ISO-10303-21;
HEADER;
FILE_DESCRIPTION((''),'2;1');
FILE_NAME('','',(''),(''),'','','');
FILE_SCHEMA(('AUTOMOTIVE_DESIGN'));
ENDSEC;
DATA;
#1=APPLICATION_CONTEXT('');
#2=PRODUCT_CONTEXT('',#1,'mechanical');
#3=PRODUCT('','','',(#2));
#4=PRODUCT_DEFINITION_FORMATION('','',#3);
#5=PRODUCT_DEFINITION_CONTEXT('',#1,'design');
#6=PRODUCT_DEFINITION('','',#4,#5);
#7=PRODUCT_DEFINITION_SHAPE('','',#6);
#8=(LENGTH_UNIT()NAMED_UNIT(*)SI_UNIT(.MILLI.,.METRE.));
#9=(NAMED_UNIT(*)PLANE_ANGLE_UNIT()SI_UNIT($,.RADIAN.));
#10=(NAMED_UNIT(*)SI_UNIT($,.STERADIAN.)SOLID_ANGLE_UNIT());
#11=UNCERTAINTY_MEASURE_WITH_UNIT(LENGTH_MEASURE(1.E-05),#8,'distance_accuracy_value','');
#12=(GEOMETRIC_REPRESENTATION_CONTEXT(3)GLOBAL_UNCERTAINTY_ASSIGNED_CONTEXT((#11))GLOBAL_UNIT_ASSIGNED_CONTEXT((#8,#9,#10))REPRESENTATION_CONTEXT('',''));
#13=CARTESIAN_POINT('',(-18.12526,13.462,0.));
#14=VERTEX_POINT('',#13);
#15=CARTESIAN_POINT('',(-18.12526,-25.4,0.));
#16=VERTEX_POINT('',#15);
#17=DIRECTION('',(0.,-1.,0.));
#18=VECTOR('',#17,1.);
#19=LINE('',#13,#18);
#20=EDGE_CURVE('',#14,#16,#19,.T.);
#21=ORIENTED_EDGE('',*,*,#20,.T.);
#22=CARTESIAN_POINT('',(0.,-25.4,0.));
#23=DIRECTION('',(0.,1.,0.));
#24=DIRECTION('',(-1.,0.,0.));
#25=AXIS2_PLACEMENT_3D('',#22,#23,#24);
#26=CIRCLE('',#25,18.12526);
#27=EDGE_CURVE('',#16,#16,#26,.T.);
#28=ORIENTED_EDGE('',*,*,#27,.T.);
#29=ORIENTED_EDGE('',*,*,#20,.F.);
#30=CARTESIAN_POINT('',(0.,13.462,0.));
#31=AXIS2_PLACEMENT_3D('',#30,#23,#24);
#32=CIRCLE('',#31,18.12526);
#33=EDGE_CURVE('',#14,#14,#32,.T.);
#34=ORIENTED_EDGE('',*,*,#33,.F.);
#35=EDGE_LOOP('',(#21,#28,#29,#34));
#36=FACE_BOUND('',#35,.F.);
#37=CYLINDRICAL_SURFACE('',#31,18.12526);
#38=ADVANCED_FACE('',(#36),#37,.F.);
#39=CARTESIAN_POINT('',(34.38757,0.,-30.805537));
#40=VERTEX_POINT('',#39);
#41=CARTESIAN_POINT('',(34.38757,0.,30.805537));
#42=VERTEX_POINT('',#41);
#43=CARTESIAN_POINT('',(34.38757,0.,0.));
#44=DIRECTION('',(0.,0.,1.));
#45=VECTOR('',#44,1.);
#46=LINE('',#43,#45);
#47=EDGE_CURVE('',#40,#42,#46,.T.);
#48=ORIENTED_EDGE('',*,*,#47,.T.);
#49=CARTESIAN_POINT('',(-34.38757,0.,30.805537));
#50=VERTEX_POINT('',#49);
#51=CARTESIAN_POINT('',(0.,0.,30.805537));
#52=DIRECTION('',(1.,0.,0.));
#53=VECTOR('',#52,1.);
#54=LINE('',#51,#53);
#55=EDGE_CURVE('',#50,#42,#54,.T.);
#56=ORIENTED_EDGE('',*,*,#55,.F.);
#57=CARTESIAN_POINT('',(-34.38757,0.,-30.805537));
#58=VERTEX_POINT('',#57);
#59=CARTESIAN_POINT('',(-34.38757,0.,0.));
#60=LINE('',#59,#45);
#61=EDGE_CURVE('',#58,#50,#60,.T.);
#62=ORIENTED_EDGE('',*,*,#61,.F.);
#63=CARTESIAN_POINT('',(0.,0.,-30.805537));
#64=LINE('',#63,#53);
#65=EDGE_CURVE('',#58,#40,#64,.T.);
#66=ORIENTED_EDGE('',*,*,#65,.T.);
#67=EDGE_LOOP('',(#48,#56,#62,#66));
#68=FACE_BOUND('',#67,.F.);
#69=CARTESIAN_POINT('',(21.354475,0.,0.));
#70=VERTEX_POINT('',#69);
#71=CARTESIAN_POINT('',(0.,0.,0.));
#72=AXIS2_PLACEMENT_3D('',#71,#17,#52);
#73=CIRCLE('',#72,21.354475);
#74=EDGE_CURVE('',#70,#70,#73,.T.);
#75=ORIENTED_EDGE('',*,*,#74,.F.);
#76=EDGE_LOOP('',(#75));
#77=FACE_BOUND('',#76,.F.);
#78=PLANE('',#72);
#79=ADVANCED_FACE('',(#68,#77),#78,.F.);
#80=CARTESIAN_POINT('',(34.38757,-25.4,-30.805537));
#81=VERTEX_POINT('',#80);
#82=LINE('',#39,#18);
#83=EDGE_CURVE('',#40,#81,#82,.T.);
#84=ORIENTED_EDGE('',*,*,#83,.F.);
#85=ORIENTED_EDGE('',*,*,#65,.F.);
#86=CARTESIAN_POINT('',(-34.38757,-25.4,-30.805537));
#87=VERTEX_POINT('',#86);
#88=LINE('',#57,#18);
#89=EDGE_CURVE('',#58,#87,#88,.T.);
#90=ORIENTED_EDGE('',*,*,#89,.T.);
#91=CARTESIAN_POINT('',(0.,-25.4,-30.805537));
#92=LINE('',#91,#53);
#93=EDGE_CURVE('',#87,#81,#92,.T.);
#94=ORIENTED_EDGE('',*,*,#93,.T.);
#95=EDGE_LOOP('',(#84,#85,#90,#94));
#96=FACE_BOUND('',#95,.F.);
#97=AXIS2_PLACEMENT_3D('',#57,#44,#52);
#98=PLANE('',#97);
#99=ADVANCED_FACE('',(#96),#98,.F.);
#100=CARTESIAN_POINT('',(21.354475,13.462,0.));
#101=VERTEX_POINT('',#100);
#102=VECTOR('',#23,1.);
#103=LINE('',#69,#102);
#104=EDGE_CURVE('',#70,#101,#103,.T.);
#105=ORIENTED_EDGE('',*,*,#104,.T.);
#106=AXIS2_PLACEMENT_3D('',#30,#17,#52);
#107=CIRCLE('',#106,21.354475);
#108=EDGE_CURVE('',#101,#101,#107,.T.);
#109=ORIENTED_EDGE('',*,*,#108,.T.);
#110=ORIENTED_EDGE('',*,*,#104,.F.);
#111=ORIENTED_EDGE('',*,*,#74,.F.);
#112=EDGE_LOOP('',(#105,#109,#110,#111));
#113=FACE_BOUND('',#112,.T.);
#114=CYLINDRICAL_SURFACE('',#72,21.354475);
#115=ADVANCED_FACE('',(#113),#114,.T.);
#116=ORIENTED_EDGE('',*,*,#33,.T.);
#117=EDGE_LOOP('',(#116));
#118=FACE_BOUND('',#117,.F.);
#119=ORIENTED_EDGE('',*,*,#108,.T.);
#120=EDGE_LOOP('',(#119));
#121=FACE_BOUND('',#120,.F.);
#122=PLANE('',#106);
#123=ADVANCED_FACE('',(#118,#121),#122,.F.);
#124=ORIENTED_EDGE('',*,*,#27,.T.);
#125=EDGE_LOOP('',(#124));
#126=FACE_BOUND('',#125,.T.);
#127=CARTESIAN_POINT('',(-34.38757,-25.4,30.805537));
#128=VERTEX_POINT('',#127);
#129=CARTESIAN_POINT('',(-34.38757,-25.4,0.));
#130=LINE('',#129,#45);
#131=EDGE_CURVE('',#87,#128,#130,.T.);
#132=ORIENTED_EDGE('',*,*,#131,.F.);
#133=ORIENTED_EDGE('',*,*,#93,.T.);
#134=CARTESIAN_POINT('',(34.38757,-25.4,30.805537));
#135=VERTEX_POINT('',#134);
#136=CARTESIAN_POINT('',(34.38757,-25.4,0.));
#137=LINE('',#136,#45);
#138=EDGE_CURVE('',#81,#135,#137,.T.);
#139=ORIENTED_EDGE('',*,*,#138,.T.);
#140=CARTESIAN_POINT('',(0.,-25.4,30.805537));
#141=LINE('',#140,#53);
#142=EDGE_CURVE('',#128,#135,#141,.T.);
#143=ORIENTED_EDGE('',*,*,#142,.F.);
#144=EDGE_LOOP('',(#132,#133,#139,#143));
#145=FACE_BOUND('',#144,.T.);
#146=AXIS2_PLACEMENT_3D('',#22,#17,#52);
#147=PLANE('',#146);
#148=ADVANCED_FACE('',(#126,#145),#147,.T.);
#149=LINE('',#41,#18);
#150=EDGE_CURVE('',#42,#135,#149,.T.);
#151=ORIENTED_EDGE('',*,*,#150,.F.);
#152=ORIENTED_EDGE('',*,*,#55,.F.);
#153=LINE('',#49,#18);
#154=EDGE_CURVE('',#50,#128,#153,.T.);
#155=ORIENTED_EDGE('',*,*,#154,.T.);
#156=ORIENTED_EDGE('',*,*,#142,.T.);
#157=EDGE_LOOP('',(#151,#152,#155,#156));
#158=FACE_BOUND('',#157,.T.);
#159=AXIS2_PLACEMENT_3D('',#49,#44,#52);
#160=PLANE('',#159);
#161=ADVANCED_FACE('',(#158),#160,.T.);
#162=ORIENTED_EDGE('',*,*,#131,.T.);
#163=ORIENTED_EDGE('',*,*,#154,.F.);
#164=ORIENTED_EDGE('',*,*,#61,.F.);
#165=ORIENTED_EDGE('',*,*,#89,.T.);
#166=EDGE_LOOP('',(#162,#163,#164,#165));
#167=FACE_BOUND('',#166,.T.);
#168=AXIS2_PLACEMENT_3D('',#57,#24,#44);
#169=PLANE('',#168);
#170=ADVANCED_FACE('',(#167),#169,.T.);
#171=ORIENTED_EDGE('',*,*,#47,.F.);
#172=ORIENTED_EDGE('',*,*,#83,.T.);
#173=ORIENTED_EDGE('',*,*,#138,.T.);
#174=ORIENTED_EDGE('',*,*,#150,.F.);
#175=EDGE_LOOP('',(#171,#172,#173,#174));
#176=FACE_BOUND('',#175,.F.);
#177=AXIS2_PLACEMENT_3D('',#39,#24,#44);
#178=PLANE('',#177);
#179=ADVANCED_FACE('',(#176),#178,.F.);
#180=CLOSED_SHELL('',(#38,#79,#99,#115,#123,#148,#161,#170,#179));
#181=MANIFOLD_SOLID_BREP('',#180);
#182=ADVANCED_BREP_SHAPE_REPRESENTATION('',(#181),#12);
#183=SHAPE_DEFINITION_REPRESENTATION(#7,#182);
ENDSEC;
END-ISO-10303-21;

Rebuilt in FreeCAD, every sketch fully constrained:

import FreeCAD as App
import Part
import Sketcher

V = App.Vector
Q = App.Units.Quantity


def add_polygon(sketch, points):
    """Adds a closed chain of lines whose ends are joined by coincident constraints."""
    first, n = sketch.GeometryCount, len(points)
    for a, b in zip(points, points[1:] + points[:1]):
        sketch.addGeometry(Part.LineSegment(App.Vector(*a, 0), App.Vector(*b, 0)), False)
    for i in range(n):
        sketch.addConstraint(Sketcher.Constraint("Coincident", first + i, 2, first + (i + 1) % n, 1))

doc = App.newDocument("Part")
body = doc.addObject("PartDesign::Body", "Body")

# Sketch on XZ plane
sketch1 = body.newObject("Sketcher::SketchObject", "Sketch")
sketch1.AttachmentSupport = (doc.getObject("XZ_Plane"), [""])
sketch1.MapMode = "FlatFace"
add_polygon(sketch1, [(-34, 31), (-34, -31), (34, -31), (34, 31)])  # lines 0-3
sketch1.addConstraint(Sketcher.Constraint("Vertical", 0))
sketch1.addConstraint(Sketcher.Constraint("Horizontal", 1))
sketch1.addConstraint(Sketcher.Constraint("Vertical", 2))
sketch1.addConstraint(Sketcher.Constraint("Horizontal", 3))
sketch1.addConstraint(Sketcher.Constraint("Symmetric", 0, 2, 2, 2, -1, 1))
sketch1.addConstraint(Sketcher.Constraint("DistanceX", 1, 1, 1, 2, Q("68.77514 mm")))
sketch1.addConstraint(Sketcher.Constraint("DistanceY", 0, 2, 0, 1, Q("61.611074 mm")))
pad1 = body.newObject("PartDesign::Pad", "Pad")
pad1.Profile = sketch1
pad1.Length = Q("1 in")

# Sketch on XZ plane
sketch2 = body.newObject("Sketcher::SketchObject", "Sketch001")
sketch2.AttachmentSupport = (doc.getObject("XZ_Plane"), [""])
sketch2.MapMode = "FlatFace"
sketch2.addGeometry(Part.Circle(V(0, 0, 0), V(0, 0, 1), 21), False)
sketch2.addConstraint(Sketcher.Constraint("Coincident", 0, 3, -1, 1))
sketch2.addConstraint(Sketcher.Constraint("Diameter", 0, Q("42.70895 mm")))
pad2 = body.newObject("PartDesign::Pad", "Pad001")
pad2.Profile = sketch2
pad2.Length = Q("0.53 in")
pad2.Reversed = True

# Sketch on XZ plane
sketch3 = body.newObject("Sketcher::SketchObject", "Sketch002")
sketch3.AttachmentSupport = (doc.getObject("XZ_Plane"), [""])
sketch3.MapMode = "FlatFace"
sketch3.AttachmentOffset = App.Placement(V(0, 0, -0.53 * 25.4), App.Rotation())
sketch3.addGeometry(Part.Circle(V(0, 0, 0), V(0, 0, 1), 18), False)
sketch3.addConstraint(Sketcher.Constraint("Coincident", 0, 3, -1, 1))
sketch3.addConstraint(Sketcher.Constraint("Diameter", 0, Q("36.25052 mm")))
pocket1 = body.newObject("PartDesign::Pocket", "Pocket")
pocket1.Profile = sketch3
pocket1.Length = Q("2.38 in")
pocket1.Reversed = True

doc.recompute()
